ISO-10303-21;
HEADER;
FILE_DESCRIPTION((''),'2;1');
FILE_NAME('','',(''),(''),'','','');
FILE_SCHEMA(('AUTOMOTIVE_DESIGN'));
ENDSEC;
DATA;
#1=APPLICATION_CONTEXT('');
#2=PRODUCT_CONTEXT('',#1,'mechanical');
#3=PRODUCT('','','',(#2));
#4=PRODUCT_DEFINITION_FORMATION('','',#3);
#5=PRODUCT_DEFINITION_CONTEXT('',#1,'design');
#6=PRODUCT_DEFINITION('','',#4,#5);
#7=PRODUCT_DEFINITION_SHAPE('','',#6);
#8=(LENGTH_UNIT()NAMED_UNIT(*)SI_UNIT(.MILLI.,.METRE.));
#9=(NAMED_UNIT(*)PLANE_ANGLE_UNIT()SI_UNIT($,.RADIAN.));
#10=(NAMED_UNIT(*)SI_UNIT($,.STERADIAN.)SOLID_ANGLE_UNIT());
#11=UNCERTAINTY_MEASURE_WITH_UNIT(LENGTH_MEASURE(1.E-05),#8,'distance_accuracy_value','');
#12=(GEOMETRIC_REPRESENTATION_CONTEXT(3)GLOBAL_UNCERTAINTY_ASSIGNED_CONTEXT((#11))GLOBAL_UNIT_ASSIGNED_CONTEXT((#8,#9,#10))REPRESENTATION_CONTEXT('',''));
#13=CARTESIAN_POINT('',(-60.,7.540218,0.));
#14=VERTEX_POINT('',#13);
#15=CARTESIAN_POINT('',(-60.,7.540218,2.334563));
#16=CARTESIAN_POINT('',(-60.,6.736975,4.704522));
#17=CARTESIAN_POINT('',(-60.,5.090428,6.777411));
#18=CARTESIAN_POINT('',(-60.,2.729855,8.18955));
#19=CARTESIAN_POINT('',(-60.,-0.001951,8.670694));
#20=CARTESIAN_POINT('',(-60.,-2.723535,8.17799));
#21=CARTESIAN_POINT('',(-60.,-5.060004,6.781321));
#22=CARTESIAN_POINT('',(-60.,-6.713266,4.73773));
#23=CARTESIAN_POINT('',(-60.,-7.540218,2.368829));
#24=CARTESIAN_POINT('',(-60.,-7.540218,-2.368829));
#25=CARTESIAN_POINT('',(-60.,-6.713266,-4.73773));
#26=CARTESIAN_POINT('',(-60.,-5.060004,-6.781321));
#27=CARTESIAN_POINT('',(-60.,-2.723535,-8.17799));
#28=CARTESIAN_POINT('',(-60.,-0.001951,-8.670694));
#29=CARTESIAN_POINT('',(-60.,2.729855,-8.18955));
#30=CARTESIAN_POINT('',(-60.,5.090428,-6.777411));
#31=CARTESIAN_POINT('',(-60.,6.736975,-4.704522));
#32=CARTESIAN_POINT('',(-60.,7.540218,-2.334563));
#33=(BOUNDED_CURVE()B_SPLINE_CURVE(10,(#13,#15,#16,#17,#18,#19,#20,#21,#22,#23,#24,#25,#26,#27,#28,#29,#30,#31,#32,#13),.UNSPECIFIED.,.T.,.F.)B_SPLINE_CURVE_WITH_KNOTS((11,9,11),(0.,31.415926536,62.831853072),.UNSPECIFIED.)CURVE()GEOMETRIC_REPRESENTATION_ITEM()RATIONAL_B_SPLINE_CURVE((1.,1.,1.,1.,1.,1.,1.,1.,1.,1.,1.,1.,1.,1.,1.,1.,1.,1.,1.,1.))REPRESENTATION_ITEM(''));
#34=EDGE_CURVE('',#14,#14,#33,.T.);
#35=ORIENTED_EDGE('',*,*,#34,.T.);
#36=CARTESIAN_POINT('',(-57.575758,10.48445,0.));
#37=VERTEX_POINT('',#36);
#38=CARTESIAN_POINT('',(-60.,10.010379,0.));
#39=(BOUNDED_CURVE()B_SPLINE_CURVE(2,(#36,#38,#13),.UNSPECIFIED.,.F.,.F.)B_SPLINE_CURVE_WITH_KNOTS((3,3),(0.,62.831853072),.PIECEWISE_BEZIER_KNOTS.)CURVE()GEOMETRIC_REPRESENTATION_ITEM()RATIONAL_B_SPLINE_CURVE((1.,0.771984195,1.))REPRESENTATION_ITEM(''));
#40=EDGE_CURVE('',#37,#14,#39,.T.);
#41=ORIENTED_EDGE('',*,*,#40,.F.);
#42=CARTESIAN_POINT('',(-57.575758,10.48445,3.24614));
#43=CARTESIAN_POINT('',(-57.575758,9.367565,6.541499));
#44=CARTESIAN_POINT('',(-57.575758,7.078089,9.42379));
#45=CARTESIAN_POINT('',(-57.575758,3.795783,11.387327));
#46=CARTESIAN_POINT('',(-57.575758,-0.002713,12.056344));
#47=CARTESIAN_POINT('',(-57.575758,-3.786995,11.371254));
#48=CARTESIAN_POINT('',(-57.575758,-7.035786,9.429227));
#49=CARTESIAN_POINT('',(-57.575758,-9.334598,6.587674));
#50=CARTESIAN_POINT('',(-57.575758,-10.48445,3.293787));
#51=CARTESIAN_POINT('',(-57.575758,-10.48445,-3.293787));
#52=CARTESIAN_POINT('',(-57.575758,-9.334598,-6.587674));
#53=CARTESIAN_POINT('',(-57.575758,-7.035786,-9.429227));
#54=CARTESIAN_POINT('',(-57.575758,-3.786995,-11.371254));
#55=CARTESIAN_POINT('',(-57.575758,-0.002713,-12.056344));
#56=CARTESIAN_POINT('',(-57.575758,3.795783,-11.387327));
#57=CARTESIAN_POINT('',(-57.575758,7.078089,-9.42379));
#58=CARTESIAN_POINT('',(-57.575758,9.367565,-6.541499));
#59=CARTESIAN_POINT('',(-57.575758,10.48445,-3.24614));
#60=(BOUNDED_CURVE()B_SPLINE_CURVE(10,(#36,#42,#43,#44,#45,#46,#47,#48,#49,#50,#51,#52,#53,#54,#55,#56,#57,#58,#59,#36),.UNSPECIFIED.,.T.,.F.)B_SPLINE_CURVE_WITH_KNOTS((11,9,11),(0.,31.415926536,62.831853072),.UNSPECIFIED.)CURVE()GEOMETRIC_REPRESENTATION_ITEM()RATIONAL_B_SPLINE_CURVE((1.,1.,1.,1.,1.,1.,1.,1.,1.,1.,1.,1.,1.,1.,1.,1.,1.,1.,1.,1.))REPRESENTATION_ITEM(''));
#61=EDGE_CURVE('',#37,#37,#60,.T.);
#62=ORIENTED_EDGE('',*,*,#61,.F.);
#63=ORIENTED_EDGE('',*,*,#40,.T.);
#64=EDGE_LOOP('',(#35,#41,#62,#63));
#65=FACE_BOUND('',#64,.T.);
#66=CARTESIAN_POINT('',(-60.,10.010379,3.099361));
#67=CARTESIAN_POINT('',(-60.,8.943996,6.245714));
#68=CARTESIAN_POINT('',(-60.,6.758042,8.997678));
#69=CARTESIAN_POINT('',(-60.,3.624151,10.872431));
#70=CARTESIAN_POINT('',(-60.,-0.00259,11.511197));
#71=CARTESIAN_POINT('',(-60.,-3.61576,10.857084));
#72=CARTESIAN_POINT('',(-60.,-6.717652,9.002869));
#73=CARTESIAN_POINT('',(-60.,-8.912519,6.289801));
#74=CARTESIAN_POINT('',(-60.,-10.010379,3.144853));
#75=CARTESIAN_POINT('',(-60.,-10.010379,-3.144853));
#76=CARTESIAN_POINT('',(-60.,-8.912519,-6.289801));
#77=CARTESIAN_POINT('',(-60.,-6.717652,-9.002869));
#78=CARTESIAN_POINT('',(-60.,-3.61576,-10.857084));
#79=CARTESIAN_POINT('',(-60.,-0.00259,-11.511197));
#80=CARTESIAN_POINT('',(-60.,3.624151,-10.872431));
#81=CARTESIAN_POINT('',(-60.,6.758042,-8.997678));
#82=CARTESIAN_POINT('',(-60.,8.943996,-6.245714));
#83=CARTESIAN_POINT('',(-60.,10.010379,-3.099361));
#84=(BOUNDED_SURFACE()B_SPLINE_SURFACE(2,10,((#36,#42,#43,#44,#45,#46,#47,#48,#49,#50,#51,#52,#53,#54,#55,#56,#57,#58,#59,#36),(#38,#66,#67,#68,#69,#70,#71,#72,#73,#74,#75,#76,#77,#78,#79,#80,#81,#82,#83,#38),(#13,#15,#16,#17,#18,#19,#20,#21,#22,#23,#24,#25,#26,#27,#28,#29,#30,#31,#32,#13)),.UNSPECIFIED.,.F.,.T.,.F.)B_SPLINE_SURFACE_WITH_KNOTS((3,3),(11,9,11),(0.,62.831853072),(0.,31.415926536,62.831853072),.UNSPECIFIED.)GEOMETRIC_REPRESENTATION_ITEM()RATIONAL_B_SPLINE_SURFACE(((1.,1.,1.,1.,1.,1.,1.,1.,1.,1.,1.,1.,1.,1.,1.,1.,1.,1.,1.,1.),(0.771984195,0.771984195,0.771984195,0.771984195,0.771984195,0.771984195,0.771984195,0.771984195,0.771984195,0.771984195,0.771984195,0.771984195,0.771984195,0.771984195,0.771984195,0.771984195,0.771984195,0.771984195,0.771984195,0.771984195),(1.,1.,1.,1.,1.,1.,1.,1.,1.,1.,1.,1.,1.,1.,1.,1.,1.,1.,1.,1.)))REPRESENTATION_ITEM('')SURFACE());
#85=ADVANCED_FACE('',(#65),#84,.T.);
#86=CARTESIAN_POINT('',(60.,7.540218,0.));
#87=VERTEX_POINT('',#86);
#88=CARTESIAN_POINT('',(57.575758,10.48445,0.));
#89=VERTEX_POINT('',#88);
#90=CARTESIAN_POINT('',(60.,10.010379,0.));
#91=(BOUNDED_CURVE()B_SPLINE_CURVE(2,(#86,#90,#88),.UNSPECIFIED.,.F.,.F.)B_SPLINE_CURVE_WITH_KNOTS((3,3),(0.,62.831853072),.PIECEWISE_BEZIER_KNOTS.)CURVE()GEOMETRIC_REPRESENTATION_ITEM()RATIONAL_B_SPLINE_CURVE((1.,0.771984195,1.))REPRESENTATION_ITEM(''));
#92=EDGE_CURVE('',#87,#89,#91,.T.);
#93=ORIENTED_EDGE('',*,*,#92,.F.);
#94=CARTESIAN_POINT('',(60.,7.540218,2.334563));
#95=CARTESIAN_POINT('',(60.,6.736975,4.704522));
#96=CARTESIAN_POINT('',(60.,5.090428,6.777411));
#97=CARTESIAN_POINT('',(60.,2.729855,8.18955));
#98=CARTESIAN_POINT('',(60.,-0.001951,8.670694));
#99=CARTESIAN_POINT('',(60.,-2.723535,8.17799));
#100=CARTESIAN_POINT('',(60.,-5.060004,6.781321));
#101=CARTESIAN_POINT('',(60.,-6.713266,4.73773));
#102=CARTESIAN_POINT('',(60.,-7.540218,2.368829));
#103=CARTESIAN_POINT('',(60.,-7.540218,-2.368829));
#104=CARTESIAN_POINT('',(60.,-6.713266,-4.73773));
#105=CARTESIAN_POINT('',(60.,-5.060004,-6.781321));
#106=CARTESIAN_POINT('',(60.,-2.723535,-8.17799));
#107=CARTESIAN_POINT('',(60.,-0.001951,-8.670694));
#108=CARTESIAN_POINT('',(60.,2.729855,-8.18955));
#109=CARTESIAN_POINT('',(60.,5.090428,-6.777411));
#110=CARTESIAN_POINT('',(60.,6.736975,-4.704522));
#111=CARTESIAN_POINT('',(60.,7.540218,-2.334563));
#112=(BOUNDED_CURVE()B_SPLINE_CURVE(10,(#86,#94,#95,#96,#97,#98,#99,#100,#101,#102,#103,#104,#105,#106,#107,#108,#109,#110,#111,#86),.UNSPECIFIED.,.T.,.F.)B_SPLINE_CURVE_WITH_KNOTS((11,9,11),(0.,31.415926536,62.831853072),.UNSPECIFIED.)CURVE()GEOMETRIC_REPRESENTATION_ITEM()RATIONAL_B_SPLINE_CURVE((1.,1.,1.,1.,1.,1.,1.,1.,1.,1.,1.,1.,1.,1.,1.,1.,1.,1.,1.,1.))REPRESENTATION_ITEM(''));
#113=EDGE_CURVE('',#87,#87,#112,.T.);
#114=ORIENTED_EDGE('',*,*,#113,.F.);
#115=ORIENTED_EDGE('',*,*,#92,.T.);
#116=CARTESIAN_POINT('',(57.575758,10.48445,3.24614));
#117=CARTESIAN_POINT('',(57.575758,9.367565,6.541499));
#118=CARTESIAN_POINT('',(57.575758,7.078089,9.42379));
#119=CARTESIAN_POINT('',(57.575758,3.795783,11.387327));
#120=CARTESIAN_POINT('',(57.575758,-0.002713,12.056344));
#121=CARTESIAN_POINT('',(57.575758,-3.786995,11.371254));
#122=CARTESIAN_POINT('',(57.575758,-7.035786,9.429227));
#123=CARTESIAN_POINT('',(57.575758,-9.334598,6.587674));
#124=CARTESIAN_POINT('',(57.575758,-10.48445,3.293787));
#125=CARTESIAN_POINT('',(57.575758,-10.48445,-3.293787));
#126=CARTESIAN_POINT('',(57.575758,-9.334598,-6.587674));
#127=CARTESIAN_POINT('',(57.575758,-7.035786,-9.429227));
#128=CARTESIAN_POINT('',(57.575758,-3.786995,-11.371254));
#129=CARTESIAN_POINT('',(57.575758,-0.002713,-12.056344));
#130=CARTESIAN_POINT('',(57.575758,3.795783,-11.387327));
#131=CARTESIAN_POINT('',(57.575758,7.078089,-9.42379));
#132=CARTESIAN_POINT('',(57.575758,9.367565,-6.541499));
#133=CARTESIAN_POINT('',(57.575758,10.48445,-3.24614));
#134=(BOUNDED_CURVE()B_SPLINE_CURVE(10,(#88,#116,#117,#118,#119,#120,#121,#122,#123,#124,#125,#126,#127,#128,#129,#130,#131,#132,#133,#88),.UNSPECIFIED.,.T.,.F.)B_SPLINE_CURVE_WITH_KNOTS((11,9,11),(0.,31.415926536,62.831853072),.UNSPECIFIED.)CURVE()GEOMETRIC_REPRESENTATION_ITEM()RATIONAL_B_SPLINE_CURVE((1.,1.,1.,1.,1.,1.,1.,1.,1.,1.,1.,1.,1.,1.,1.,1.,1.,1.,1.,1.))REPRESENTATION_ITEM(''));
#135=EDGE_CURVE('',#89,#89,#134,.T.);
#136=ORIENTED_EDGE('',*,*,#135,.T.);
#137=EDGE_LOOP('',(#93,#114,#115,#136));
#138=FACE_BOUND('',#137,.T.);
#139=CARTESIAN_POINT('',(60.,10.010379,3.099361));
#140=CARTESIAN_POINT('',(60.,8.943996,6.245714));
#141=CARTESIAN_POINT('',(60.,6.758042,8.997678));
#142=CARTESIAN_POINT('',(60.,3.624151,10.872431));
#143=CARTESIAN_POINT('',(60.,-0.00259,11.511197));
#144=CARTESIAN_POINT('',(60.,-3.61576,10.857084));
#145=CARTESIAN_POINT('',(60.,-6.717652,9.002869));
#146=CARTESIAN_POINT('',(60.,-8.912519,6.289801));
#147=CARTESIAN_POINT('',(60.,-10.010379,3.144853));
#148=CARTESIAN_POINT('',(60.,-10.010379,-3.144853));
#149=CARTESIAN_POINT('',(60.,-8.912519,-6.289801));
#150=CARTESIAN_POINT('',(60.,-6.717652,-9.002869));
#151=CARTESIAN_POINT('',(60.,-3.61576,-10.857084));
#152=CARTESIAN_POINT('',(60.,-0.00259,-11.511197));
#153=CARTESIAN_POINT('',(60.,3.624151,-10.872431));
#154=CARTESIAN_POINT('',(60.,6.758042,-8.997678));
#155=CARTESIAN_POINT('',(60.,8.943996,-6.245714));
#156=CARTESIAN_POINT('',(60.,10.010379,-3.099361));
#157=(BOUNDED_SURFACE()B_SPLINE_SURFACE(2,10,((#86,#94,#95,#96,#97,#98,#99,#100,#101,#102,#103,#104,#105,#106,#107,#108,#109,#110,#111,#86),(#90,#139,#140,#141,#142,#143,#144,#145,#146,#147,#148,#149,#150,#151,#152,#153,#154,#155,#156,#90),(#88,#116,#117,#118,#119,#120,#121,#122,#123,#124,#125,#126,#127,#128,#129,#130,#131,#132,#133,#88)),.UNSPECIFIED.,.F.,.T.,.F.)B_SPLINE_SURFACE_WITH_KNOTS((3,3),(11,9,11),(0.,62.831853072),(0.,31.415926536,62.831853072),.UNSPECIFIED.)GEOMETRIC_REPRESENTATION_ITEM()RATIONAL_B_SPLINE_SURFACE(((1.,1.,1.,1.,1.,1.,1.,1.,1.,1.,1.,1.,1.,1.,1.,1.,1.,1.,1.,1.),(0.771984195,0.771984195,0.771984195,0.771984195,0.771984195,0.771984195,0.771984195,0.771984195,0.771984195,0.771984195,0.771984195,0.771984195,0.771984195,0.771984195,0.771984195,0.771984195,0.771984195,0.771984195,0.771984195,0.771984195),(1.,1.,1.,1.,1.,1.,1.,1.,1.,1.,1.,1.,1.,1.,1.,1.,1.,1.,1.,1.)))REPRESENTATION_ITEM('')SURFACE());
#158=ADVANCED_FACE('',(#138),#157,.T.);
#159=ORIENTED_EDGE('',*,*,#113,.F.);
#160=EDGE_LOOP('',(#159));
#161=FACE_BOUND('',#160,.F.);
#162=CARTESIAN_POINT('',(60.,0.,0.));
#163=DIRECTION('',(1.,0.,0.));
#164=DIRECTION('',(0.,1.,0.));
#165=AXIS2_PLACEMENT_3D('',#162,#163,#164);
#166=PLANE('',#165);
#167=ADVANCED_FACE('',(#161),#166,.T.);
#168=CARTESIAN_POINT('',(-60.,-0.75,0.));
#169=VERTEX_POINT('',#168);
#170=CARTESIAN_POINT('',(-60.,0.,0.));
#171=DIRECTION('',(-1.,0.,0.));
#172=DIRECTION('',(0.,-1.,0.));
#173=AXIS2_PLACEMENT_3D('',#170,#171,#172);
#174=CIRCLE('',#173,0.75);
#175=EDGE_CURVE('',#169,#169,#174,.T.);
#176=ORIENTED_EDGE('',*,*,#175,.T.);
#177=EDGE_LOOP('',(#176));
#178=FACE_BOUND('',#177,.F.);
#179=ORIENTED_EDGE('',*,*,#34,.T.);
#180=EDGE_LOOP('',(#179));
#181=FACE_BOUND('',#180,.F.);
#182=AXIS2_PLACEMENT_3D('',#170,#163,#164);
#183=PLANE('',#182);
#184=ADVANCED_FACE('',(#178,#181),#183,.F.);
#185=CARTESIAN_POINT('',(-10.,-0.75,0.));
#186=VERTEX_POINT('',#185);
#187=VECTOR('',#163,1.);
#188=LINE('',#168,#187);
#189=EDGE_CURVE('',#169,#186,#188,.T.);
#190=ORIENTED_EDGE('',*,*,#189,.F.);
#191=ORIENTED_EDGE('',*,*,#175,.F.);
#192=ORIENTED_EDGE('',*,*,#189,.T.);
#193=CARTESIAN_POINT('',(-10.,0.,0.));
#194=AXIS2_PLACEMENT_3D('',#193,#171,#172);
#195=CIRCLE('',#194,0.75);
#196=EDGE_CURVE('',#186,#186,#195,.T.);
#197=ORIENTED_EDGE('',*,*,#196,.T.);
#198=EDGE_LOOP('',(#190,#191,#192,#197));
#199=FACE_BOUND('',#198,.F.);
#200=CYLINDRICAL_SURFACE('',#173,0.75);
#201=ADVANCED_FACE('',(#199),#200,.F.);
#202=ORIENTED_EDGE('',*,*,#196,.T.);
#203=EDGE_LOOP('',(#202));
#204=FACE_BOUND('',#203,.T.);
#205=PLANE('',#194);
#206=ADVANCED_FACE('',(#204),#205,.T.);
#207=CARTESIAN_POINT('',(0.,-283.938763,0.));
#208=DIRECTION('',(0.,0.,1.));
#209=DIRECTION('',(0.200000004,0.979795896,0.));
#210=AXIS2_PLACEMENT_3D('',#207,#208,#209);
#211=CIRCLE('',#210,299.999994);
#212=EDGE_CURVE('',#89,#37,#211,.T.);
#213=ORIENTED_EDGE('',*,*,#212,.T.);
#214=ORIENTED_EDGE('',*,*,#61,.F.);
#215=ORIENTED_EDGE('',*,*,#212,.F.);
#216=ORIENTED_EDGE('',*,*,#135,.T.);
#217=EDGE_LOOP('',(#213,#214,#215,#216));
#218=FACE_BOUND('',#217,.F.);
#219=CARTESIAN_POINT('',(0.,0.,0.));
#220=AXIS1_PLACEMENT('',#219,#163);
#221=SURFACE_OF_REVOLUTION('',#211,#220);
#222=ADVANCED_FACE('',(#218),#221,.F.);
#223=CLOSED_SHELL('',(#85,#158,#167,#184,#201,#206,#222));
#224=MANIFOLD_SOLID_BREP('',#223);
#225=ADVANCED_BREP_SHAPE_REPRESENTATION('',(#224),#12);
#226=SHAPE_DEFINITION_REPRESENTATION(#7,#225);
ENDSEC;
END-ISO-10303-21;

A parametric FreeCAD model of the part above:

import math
import FreeCAD as App
import Part
import Sketcher

V = App.Vector
Q = App.Units.Quantity


def edges_at(feature, points):
    """Names of the edges that pass closest to the given points."""
    edges = feature.Shape.Edges
    near = lambda p: min(range(len(edges)), key=lambda i: edges[i].distToShape(Part.Vertex(*p))[0])
    return sorted({f"Edge{near(p) + 1}" for p in points})

doc = App.newDocument("Part")
body = doc.addObject("PartDesign::Body", "Body")

sketch1 = body.newObject("Sketcher::SketchObject", "Sketch")
sketch1.AttachmentSupport = (doc.getObject("XY_Plane"), [""])
sketch1.MapMode = "FlatFace"
sketch1.addGeometry(Part.LineSegment(V(60, 0, 0), V(60, 10, 0)), False)
sketch1.addGeometry(Part.ArcOfCircle(Part.Circle(V(0, -284, 0), V(0, 0, 1), 300), math.radians(78), math.radians(102)), False)
sketch1.addGeometry(Part.LineSegment(V(-60, 10, 0), V(-60, 0, 0)), False)
sketch1.addGeometry(Part.LineSegment(V(-60, 0, 0), V(60, 0, 0)), False)
sketch1.addConstraint(Sketcher.Constraint("Coincident", 0, 2, 1, 1))
sketch1.addConstraint(Sketcher.Constraint("Coincident", 1, 2, 2, 1))
sketch1.addConstraint(Sketcher.Constraint("Coincident", 2, 2, 3, 1))
sketch1.addConstraint(Sketcher.Constraint("Coincident", 3, 2, 0, 1))
sketch1.addConstraint(Sketcher.Constraint("Vertical", 0))
sketch1.addConstraint(Sketcher.Constraint("Vertical", 2))
sketch1.addConstraint(Sketcher.Constraint("Horizontal", 3))
sketch1.addConstraint(Sketcher.Constraint("Symmetric", 2, 2, 3, 2, -1, 1))
sketch1.addConstraint(Sketcher.Constraint("PointOnObject", 1, 3, -2))
sketch1.addConstraint(Sketcher.Constraint("DistanceX", 3, 1, 3, 2, Q("120 mm")))
sketch1.addConstraint(Sketcher.Constraint("DistanceY", 0, 1, 0, 2, Q("10 mm")))
sketch1.addConstraint(Sketcher.Constraint("Radius", 1, Q("299.999994 mm")))
revolution = body.newObject("PartDesign::Revolution", "Revolution")
revolution.Profile = sketch1
revolution.ReferenceAxis = (sketch1, ["H_Axis"])
revolution.Angle = 360

sketch2 = body.newObject("Sketcher::SketchObject", "Sketch001")
sketch2.AttachmentSupport = (doc.getObject("YZ_Plane"), [""])
sketch2.MapMode = "FlatFace"
sketch2.AttachmentOffset = App.Placement(V(0, 0, -60), App.Rotation())
sketch2.addGeometry(Part.Circle(V(0, 0, 0), V(0, 0, 1), 0.8), False)
sketch2.addConstraint(Sketcher.Constraint("Coincident", 0, 3, -1, 1))
sketch2.addConstraint(Sketcher.Constraint("Diameter", 0, Q("1.5 mm")))
pocket1 = body.newObject("PartDesign::Pocket", "Pocket")
pocket1.Profile = sketch2
pocket1.Length = 50
pocket1.Reversed = True
doc.recompute()

fillet = body.newObject("PartDesign::Fillet", "Fillet")
fillet.Base = (pocket1, edges_at(pocket1, [(-60, -10, 0), (60, -10, 0)]))
fillet.Radius = 3

doc.recompute()
